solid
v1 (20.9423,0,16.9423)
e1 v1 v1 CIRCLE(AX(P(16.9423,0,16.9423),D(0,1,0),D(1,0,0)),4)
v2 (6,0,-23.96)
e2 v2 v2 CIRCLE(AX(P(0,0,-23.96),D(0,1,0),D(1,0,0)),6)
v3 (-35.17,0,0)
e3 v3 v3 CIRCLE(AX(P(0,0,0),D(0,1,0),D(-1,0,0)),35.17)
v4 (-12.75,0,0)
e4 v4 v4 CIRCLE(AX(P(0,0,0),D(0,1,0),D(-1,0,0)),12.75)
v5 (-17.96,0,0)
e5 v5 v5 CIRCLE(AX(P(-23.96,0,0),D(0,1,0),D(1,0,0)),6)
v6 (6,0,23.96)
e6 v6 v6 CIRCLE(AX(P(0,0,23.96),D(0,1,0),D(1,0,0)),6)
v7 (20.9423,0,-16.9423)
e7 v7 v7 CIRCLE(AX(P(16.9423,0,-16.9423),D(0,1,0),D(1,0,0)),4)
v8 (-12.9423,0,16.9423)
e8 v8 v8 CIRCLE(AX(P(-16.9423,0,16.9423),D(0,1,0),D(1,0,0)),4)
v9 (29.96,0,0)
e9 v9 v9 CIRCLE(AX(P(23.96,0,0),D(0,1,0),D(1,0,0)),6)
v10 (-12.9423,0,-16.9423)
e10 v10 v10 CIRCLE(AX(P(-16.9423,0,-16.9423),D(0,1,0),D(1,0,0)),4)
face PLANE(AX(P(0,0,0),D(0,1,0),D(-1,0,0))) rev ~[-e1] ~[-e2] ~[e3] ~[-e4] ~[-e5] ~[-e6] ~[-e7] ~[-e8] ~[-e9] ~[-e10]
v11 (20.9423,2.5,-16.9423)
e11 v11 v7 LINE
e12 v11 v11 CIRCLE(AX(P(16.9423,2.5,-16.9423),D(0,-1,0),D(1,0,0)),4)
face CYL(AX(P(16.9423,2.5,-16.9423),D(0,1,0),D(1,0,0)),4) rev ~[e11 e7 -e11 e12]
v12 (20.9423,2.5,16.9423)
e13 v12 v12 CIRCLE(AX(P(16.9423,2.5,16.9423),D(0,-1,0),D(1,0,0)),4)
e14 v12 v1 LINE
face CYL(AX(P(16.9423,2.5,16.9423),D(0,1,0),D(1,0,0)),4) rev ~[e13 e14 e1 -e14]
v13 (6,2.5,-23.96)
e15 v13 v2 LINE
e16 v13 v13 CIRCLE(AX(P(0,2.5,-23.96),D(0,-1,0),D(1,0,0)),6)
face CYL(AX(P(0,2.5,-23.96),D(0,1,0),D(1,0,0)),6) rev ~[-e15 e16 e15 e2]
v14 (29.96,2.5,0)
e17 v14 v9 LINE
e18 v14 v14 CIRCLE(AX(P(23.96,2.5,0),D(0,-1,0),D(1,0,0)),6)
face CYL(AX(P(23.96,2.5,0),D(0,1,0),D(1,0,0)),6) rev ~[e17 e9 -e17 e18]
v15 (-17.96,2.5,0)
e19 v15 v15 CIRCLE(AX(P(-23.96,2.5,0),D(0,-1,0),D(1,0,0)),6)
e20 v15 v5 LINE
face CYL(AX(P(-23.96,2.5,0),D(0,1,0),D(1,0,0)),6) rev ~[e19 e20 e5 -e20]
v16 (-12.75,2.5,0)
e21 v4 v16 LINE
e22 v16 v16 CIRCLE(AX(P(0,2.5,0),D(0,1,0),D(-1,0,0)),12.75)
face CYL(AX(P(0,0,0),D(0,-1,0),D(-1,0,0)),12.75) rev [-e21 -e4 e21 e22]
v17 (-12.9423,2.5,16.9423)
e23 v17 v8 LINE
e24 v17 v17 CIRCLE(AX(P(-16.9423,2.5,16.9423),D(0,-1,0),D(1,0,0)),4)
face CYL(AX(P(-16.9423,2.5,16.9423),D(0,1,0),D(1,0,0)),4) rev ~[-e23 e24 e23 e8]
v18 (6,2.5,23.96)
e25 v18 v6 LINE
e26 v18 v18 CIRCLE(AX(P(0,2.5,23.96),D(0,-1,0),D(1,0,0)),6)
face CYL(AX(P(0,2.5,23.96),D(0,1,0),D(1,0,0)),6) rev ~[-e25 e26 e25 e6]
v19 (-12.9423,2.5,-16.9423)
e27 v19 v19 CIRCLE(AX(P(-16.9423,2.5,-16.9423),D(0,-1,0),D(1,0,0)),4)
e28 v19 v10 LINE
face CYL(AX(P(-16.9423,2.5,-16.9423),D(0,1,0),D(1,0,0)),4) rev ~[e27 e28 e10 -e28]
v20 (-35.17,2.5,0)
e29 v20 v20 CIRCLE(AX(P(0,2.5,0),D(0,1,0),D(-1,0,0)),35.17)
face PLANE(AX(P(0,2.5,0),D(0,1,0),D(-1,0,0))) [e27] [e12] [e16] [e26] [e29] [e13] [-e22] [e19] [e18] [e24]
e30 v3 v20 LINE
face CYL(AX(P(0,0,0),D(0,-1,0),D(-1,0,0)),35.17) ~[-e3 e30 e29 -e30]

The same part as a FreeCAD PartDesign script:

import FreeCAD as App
import Part
import Sketcher

V = App.Vector

doc = App.newDocument("Part")
body = doc.addObject("PartDesign::Body", "Body")

sketch1 = doc.addObject("Sketcher::SketchObject", "Sketch")
body.addObject(sketch1)
sketch1.AttachmentSupport = (doc.XZ_Plane, [""])
sketch1.MapMode = "FlatFace"
sketch1.addGeometry(Part.Circle(V(0, 0, 0), V(0, 0, 1), 35.17), False)
sketch1.addGeometry(Part.Circle(V(0, 0, 0), V(0, 0, 1), 12.75), False)
sketch1.addConstraint(Sketcher.Constraint("Coincident", 0, 3, -1, 1))
sketch1.addConstraint(Sketcher.Constraint("Coincident", 1, 3, -1, 1))
sketch1.addConstraint(Sketcher.Constraint("Diameter", 1, 25.5))
sketch1.addConstraint(Sketcher.Constraint("Diameter", 0, 70.34))
pad1 = doc.addObject("PartDesign::Pad", "Pad")
body.addObject(pad1)
pad1.Profile = sketch1
pad1.Length = 2.5
pad1.Reversed = True

sketch2 = doc.addObject("Sketcher::SketchObject", "Sketch001")
body.addObject(sketch2)
sketch2.AttachmentSupport = (doc.XZ_Plane, [""])
sketch2.MapMode = "FlatFace"
sketch2.AttachmentOffset = App.Placement(V(0, 0, -2.5), App.Rotation())
sketch2.addGeometry(Part.Circle(V(0, -23.96, 0), V(0, 0, 1), 6), False)
sketch2.addGeometry(Part.Circle(V(23.96, 0, 0), V(0, 0, 1), 6), False)
sketch2.addGeometry(Part.Circle(V(16.9423, -16.9423, 0), V(0, 0, 1), 4), False)
sketch2.addGeometry(Part.Circle(V(-16.9423, -16.9423, 0), V(0, 0, 1), 4), False)
sketch2.addGeometry(Part.Circle(V(16.9423, 16.9423, 0), V(0, 0, 1), 4), False)
sketch2.addGeometry(Part.Circle(V(-23.96, 0, 0), V(0, 0, 1), 6), False)
sketch2.addGeometry(Part.Circle(V(0, 23.96, 0), V(0, 0, 1), 6), False)
sketch2.addGeometry(Part.Circle(V(-16.9423, 16.9423, 0), V(0, 0, 1), 4), False)
sketch2.addConstraint(Sketcher.Constraint("Equal", 0, 1))
sketch2.addConstraint(Sketcher.Constraint("Equal", 2, 3))
sketch2.addConstraint(Sketcher.Constraint("Equal", 3, 4))
sketch2.addConstraint(Sketcher.Constraint("Equal", 1, 5))
sketch2.addConstraint(Sketcher.Constraint("Equal", 5, 6))
sketch2.addConstraint(Sketcher.Constraint("Equal", 4, 7))
sketch2.addConstraint(Sketcher.Constraint("Symmetric", 3, 3, 4, 3, -1, 1))
sketch2.addConstraint(Sketcher.Constraint("Symmetric", 1, 3, 5, 3, -1, 1))
sketch2.addConstraint(Sketcher.Constraint("Symmetric", 0, 3, 6, 3, -1, 1))
sketch2.addConstraint(Sketcher.Constraint("Symmetric", 2, 3, 7, 3, -1, 1))
sketch2.addConstraint(Sketcher.Constraint("Symmetric", 2, 3, 3, 3, -2))
sketch2.addConstraint(Sketcher.Constraint("PointOnObject", 0, 3, -2))
sketch2.addConstraint(Sketcher.Constraint("PointOnObject", 1, 3, -1))
sketch2.addConstraint(Sketcher.Constraint("Diameter", 0, 12.0))
sketch2.addConstraint(Sketcher.Constraint("Diameter", 2, 8.0))
sketch2.addConstraint(Sketcher.Constraint("DistanceY", 0, 3, -1, 1, 23.96))
sketch2.addConstraint(Sketcher.Constraint("DistanceX", -1, 1, 1, 3, 23.96))
sketch2.addConstraint(Sketcher.Constraint("DistanceX", -1, 1, 2, 3, 16.9423))
sketch2.addConstraint(Sketcher.Constraint("DistanceY", 2, 3, -1, 1, 16.9423))
pocket1 = doc.addObject("PartDesign::Pocket", "Pocket")
body.addObject(pocket1)
pocket1.Profile = sketch2
pocket1.Length = 10
pocket1.Reversed = True

doc.recompute()
